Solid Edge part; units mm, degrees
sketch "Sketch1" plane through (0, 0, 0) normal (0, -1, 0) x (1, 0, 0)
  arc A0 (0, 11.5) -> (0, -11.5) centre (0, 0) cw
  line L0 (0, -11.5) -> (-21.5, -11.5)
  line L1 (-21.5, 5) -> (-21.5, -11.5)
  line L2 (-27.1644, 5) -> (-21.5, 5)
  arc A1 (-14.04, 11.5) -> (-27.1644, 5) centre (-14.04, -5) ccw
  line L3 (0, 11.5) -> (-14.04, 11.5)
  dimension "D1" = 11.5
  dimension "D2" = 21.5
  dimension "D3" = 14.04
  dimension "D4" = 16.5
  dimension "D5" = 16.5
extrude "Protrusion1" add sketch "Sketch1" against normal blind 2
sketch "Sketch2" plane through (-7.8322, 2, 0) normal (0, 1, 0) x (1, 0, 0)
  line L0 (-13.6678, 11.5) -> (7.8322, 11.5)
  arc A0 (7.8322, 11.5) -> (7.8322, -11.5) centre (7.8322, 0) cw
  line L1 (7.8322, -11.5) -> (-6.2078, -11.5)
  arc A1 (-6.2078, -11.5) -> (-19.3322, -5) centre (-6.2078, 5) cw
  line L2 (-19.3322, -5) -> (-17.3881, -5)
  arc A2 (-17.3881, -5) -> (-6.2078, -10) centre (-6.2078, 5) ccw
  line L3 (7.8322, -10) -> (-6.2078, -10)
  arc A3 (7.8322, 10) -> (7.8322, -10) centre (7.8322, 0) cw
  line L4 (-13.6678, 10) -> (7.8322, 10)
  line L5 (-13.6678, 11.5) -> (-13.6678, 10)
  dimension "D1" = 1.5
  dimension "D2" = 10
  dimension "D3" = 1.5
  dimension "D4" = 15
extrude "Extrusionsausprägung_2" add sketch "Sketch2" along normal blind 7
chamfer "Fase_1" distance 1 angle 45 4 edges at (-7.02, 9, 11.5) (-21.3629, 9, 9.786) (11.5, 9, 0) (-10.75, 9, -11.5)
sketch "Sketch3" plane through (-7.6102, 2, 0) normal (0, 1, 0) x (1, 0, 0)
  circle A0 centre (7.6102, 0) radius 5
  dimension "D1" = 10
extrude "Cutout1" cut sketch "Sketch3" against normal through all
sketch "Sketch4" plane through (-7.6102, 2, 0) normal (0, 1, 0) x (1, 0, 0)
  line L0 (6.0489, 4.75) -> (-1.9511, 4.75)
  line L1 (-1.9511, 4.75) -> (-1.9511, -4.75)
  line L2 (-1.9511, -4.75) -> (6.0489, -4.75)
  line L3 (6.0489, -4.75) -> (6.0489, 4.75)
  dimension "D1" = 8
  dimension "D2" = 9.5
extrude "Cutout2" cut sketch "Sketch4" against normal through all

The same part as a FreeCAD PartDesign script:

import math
import FreeCAD as App
import Part
import Sketcher

V = App.Vector
Q = App.Units.Quantity


def edges_at(feature, points):
    """Names of the edges that pass closest to the given points."""
    edges = feature.Shape.Edges
    near = lambda p: min(range(len(edges)), key=lambda i: edges[i].distToShape(Part.Vertex(*p))[0])
    return sorted({f"Edge{near(p) + 1}" for p in points})

doc = App.newDocument("Part")
body = doc.addObject("PartDesign::Body", "Body")

# Sketch on XZ plane
sketch1 = body.newObject("Sketcher::SketchObject", "Sketch")
sketch1.AttachmentSupport = (doc.getObject("XZ_Plane"), [""])
sketch1.MapMode = "FlatFace"
sketch1.addGeometry(Part.ArcOfCircle(Part.Circle(V(0, 0, 0), V(0, 0, 1), 12), math.radians(-90), math.radians(90)), False)
sketch1.addGeometry(Part.LineSegment(V(0, 12, 0), V(-14, 12, 0)), False)
sketch1.addGeometry(Part.ArcOfCircle(Part.Circle(V(-14, -5, 0), V(0, 0, 1), 16), math.radians(90), math.radians(143)), False)
sketch1.addGeometry(Part.LineSegment(V(-27, 5, 0), V(-22, 5, 0)), False)
sketch1.addGeometry(Part.LineSegment(V(-22, 5, 0), V(-22, -12, 0)), False)
sketch1.addGeometry(Part.LineSegment(V(-22, -12, 0), V(0, -12, 0)), False)
sketch1.addConstraint(Sketcher.Constraint("Tangent", 0, 2, 1, 1))
sketch1.addConstraint(Sketcher.Constraint("Tangent", 1, 2, 2, 1))
sketch1.addConstraint(Sketcher.Constraint("Coincident", 2, 2, 3, 1))
sketch1.addConstraint(Sketcher.Constraint("Coincident", 3, 2, 4, 1))
sketch1.addConstraint(Sketcher.Constraint("Coincident", 4, 2, 5, 1))
sketch1.addConstraint(Sketcher.Constraint("Tangent", 5, 2, 0, 1))
sketch1.addConstraint(Sketcher.Constraint("Horizontal", 1))
sketch1.addConstraint(Sketcher.Constraint("Horizontal", 3))
sketch1.addConstraint(Sketcher.Constraint("Vertical", 4))
sketch1.addConstraint(Sketcher.Constraint("Horizontal", 5))
sketch1.addConstraint(Sketcher.Constraint("Coincident", 0, 3, -1, 1))
sketch1.addConstraint(Sketcher.Constraint("DistanceX", 5, 1, 5, 2, Q("21.5 mm")))
sketch1.addConstraint(Sketcher.Constraint("Radius", 0, Q("11.5 mm")))
sketch1.addConstraint(Sketcher.Constraint("Radius", 2, Q("16.5 mm")))
sketch1.addConstraint(Sketcher.Constraint("DistanceY", 4, 2, 4, 1, Q("16.5 mm")))
sketch1.addConstraint(Sketcher.Constraint("DistanceX", 1, 2, 1, 1, Q("14.04 mm")))
pad1 = body.newObject("PartDesign::Pad", "Pad")
pad1.Profile = sketch1
pad1.Length = 2
pad1.Reversed = True

# Sketch on XZ plane
sketch2 = body.newObject("Sketcher::SketchObject", "Sketch001")
sketch2.AttachmentSupport = (doc.getObject("XZ_Plane"), [""])
sketch2.MapMode = "FlatFace"
sketch2.AttachmentOffset = App.Placement(V(0, 0, -2), App.Rotation())
sketch2.addGeometry(Part.LineSegment(V(0, -11.5, 0), V(-21.5, -11.5, 0)), False)
sketch2.addGeometry(Part.LineSegment(V(-21.5, -11.5, 0), V(-21.5, -10, 0)), False)
sketch2.addGeometry(Part.LineSegment(V(-21.5, -10, 0), V(0, -10, 0)), False)
sketch2.addGeometry(Part.ArcOfCircle(Part.Circle(V(0, 0, 0), V(0, 0, 1), 10), math.radians(-90), math.radians(90)), False)
sketch2.addGeometry(Part.LineSegment(V(0, 10, 0), V(-14, 10, 0)), False)
sketch2.addGeometry(Part.ArcOfCircle(Part.Circle(V(-14, -5, 0), V(0, 0, 1), 15), math.radians(90), math.radians(138)), False)
sketch2.addGeometry(Part.LineSegment(V(-25.2, 5, 0), V(-27.2, 5, 0)), False)
sketch2.addGeometry(Part.ArcOfCircle(Part.Circle(V(-14, -5, 0), V(0, 0, 1), 16.5), math.radians(90), math.radians(143)), False)
sketch2.addGeometry(Part.LineSegment(V(-14, 11.5, 0), V(0, 11.5, 0)), False)
sketch2.addGeometry(Part.ArcOfCircle(Part.Circle(V(0, 0, 0), V(0, 0, 1), 11.5), math.radians(-90), math.radians(90)), False)
sketch2.addConstraint(Sketcher.Constraint("Coincident", 0, 2, 1, 1))
sketch2.addConstraint(Sketcher.Constraint("Coincident", 1, 2, 2, 1))
sketch2.addConstraint(Sketcher.Constraint("Tangent", 2, 2, 3, 1))
sketch2.addConstraint(Sketcher.Constraint("Tangent", 3, 2, 4, 1))
sketch2.addConstraint(Sketcher.Constraint("Tangent", 4, 2, 5, 1))
sketch2.addConstraint(Sketcher.Constraint("Coincident", 5, 2, 6, 1))
sketch2.addConstraint(Sketcher.Constraint("Coincident", 6, 2, 7, 2))
sketch2.addConstraint(Sketcher.Constraint("Tangent", 7, 1, 8, 1))
sketch2.addConstraint(Sketcher.Constraint("Tangent", 8, 2, 9, 2))
sketch2.addConstraint(Sketcher.Constraint("Tangent", 9, 1, 0, 1))
sketch2.addConstraint(Sketcher.Constraint("Horizontal", 0))
sketch2.addConstraint(Sketcher.Constraint("Vertical", 1))
sketch2.addConstraint(Sketcher.Constraint("Horizontal", 2))
sketch2.addConstraint(Sketcher.Constraint("Horizontal", 4))
sketch2.addConstraint(Sketcher.Constraint("Horizontal", 6))
sketch2.addConstraint(Sketcher.Constraint("Horizontal", 8))
sketch2.addConstraint(Sketcher.Constraint("Coincident", 3, 3, -1, 1))
sketch2.addConstraint(Sketcher.Constraint("Coincident", 9, 3, -1, 1))
sketch2.addConstraint(Sketcher.Constraint("Coincident", 7, 3, 5, 3))
sketch2.addConstraint(Sketcher.Constraint("Radius", 3, Q("10 mm")))
sketch2.addConstraint(Sketcher.Constraint("Radius", 5, Q("15 mm")))
sketch2.addConstraint(Sketcher.Constraint("Radius", 7, Q("16.5 mm")))
sketch2.addConstraint(Sketcher.Constraint("DistanceX", 0, 2, 0, 1, Q("21.5 mm")))
sketch2.addConstraint(Sketcher.Constraint("DistanceY", -1, 1, 5, 2, Q("5 mm")))
sketch2.addConstraint(Sketcher.Constraint("DistanceX", 4, 2, 4, 1, Q("14.04 mm")))
pad2 = body.newObject("PartDesign::Pad", "Pad001")
pad2.Profile = sketch2
pad2.Length = 7
pad2.Reversed = True
doc.recompute()

chamfer = body.newObject("PartDesign::Chamfer", "Chamfer")
chamfer.Base = (pad2, edges_at(pad2, [
    (-7.02, 9, 11.5),
    (-21.363, 9, 9.786),
    (11.5, 9, 0),
    (-10.75, 9, -11.5),
]))
chamfer.Size = 1

# Sketch on XZ plane
sketch3 = body.newObject("Sketcher::SketchObject", "Sketch002")
sketch3.AttachmentSupport = (doc.getObject("XZ_Plane"), [""])
sketch3.MapMode = "FlatFace"
sketch3.AttachmentOffset = App.Placement(V(0, 0, -2), App.Rotation())
sketch3.addGeometry(Part.Circle(V(0, 0, 0), V(0, 0, 1), 5), False)
sketch3.addConstraint(Sketcher.Constraint("Coincident", 0, 3, -1, 1))
sketch3.addConstraint(Sketcher.Constraint("Diameter", 0, Q("10 mm")))
pocket1 = body.newObject("PartDesign::Pocket", "Pocket")
pocket1.Profile = sketch3
pocket1.Type = "ThroughAll"
pocket1.Reversed = True

# Sketch on XZ plane
sketch4 = body.newObject("Sketcher::SketchObject", "Sketch003")
sketch4.AttachmentSupport = (doc.getObject("XZ_Plane"), [""])
sketch4.MapMode = "FlatFace"
sketch4.AttachmentOffset = App.Placement(V(0, 0, -2), App.Rotation())
sketch4.addGeometry(Part.LineSegment(V(-2, 5, 0), V(-2, -5, 0)), False)
sketch4.addGeometry(Part.LineSegment(V(-2, -5, 0), V(-10, -5, 0)), False)
sketch4.addGeometry(Part.LineSegment(V(-10, -5, 0), V(-10, 5, 0)), False)
sketch4.addGeometry(Part.LineSegment(V(-10, 5, 0), V(-2, 5, 0)), False)
sketch4.addConstraint(Sketcher.Constraint("Coincident", 0, 2, 1, 1))
sketch4.addConstraint(Sketcher.Constraint("Coincident", 1, 2, 2, 1))
sketch4.addConstraint(Sketcher.Constraint("Coincident", 2, 2, 3, 1))
sketch4.addConstraint(Sketcher.Constraint("Coincident", 3, 2, 0, 1))
sketch4.addConstraint(Sketcher.Constraint("Vertical", 0))
sketch4.addConstraint(Sketcher.Constraint("Horizontal", 1))
sketch4.addConstraint(Sketcher.Constraint("Vertical", 2))
sketch4.addConstraint(Sketcher.Constraint("Horizontal", 3))
sketch4.addConstraint(Sketcher.Constraint("DistanceX", 1, 2, 1, 1, Q("8 mm")))
sketch4.addConstraint(Sketcher.Constraint("DistanceY", 0, 2, 0, 1, Q("9.5 mm")))
sketch4.addConstraint(Sketcher.Constraint("DistanceY", 0, 2, -1, 1, Q("4.75 mm")))
sketch4.addConstraint(Sketcher.Constraint("DistanceX", 0, 2, -1, 1, Q("1.5613 mm")))
pocket2 = body.newObject("PartDesign::Pocket", "Pocket001")
pocket2.Profile = sketch4
pocket2.Type = "ThroughAll"
pocket2.Reversed = True

doc.recompute()
